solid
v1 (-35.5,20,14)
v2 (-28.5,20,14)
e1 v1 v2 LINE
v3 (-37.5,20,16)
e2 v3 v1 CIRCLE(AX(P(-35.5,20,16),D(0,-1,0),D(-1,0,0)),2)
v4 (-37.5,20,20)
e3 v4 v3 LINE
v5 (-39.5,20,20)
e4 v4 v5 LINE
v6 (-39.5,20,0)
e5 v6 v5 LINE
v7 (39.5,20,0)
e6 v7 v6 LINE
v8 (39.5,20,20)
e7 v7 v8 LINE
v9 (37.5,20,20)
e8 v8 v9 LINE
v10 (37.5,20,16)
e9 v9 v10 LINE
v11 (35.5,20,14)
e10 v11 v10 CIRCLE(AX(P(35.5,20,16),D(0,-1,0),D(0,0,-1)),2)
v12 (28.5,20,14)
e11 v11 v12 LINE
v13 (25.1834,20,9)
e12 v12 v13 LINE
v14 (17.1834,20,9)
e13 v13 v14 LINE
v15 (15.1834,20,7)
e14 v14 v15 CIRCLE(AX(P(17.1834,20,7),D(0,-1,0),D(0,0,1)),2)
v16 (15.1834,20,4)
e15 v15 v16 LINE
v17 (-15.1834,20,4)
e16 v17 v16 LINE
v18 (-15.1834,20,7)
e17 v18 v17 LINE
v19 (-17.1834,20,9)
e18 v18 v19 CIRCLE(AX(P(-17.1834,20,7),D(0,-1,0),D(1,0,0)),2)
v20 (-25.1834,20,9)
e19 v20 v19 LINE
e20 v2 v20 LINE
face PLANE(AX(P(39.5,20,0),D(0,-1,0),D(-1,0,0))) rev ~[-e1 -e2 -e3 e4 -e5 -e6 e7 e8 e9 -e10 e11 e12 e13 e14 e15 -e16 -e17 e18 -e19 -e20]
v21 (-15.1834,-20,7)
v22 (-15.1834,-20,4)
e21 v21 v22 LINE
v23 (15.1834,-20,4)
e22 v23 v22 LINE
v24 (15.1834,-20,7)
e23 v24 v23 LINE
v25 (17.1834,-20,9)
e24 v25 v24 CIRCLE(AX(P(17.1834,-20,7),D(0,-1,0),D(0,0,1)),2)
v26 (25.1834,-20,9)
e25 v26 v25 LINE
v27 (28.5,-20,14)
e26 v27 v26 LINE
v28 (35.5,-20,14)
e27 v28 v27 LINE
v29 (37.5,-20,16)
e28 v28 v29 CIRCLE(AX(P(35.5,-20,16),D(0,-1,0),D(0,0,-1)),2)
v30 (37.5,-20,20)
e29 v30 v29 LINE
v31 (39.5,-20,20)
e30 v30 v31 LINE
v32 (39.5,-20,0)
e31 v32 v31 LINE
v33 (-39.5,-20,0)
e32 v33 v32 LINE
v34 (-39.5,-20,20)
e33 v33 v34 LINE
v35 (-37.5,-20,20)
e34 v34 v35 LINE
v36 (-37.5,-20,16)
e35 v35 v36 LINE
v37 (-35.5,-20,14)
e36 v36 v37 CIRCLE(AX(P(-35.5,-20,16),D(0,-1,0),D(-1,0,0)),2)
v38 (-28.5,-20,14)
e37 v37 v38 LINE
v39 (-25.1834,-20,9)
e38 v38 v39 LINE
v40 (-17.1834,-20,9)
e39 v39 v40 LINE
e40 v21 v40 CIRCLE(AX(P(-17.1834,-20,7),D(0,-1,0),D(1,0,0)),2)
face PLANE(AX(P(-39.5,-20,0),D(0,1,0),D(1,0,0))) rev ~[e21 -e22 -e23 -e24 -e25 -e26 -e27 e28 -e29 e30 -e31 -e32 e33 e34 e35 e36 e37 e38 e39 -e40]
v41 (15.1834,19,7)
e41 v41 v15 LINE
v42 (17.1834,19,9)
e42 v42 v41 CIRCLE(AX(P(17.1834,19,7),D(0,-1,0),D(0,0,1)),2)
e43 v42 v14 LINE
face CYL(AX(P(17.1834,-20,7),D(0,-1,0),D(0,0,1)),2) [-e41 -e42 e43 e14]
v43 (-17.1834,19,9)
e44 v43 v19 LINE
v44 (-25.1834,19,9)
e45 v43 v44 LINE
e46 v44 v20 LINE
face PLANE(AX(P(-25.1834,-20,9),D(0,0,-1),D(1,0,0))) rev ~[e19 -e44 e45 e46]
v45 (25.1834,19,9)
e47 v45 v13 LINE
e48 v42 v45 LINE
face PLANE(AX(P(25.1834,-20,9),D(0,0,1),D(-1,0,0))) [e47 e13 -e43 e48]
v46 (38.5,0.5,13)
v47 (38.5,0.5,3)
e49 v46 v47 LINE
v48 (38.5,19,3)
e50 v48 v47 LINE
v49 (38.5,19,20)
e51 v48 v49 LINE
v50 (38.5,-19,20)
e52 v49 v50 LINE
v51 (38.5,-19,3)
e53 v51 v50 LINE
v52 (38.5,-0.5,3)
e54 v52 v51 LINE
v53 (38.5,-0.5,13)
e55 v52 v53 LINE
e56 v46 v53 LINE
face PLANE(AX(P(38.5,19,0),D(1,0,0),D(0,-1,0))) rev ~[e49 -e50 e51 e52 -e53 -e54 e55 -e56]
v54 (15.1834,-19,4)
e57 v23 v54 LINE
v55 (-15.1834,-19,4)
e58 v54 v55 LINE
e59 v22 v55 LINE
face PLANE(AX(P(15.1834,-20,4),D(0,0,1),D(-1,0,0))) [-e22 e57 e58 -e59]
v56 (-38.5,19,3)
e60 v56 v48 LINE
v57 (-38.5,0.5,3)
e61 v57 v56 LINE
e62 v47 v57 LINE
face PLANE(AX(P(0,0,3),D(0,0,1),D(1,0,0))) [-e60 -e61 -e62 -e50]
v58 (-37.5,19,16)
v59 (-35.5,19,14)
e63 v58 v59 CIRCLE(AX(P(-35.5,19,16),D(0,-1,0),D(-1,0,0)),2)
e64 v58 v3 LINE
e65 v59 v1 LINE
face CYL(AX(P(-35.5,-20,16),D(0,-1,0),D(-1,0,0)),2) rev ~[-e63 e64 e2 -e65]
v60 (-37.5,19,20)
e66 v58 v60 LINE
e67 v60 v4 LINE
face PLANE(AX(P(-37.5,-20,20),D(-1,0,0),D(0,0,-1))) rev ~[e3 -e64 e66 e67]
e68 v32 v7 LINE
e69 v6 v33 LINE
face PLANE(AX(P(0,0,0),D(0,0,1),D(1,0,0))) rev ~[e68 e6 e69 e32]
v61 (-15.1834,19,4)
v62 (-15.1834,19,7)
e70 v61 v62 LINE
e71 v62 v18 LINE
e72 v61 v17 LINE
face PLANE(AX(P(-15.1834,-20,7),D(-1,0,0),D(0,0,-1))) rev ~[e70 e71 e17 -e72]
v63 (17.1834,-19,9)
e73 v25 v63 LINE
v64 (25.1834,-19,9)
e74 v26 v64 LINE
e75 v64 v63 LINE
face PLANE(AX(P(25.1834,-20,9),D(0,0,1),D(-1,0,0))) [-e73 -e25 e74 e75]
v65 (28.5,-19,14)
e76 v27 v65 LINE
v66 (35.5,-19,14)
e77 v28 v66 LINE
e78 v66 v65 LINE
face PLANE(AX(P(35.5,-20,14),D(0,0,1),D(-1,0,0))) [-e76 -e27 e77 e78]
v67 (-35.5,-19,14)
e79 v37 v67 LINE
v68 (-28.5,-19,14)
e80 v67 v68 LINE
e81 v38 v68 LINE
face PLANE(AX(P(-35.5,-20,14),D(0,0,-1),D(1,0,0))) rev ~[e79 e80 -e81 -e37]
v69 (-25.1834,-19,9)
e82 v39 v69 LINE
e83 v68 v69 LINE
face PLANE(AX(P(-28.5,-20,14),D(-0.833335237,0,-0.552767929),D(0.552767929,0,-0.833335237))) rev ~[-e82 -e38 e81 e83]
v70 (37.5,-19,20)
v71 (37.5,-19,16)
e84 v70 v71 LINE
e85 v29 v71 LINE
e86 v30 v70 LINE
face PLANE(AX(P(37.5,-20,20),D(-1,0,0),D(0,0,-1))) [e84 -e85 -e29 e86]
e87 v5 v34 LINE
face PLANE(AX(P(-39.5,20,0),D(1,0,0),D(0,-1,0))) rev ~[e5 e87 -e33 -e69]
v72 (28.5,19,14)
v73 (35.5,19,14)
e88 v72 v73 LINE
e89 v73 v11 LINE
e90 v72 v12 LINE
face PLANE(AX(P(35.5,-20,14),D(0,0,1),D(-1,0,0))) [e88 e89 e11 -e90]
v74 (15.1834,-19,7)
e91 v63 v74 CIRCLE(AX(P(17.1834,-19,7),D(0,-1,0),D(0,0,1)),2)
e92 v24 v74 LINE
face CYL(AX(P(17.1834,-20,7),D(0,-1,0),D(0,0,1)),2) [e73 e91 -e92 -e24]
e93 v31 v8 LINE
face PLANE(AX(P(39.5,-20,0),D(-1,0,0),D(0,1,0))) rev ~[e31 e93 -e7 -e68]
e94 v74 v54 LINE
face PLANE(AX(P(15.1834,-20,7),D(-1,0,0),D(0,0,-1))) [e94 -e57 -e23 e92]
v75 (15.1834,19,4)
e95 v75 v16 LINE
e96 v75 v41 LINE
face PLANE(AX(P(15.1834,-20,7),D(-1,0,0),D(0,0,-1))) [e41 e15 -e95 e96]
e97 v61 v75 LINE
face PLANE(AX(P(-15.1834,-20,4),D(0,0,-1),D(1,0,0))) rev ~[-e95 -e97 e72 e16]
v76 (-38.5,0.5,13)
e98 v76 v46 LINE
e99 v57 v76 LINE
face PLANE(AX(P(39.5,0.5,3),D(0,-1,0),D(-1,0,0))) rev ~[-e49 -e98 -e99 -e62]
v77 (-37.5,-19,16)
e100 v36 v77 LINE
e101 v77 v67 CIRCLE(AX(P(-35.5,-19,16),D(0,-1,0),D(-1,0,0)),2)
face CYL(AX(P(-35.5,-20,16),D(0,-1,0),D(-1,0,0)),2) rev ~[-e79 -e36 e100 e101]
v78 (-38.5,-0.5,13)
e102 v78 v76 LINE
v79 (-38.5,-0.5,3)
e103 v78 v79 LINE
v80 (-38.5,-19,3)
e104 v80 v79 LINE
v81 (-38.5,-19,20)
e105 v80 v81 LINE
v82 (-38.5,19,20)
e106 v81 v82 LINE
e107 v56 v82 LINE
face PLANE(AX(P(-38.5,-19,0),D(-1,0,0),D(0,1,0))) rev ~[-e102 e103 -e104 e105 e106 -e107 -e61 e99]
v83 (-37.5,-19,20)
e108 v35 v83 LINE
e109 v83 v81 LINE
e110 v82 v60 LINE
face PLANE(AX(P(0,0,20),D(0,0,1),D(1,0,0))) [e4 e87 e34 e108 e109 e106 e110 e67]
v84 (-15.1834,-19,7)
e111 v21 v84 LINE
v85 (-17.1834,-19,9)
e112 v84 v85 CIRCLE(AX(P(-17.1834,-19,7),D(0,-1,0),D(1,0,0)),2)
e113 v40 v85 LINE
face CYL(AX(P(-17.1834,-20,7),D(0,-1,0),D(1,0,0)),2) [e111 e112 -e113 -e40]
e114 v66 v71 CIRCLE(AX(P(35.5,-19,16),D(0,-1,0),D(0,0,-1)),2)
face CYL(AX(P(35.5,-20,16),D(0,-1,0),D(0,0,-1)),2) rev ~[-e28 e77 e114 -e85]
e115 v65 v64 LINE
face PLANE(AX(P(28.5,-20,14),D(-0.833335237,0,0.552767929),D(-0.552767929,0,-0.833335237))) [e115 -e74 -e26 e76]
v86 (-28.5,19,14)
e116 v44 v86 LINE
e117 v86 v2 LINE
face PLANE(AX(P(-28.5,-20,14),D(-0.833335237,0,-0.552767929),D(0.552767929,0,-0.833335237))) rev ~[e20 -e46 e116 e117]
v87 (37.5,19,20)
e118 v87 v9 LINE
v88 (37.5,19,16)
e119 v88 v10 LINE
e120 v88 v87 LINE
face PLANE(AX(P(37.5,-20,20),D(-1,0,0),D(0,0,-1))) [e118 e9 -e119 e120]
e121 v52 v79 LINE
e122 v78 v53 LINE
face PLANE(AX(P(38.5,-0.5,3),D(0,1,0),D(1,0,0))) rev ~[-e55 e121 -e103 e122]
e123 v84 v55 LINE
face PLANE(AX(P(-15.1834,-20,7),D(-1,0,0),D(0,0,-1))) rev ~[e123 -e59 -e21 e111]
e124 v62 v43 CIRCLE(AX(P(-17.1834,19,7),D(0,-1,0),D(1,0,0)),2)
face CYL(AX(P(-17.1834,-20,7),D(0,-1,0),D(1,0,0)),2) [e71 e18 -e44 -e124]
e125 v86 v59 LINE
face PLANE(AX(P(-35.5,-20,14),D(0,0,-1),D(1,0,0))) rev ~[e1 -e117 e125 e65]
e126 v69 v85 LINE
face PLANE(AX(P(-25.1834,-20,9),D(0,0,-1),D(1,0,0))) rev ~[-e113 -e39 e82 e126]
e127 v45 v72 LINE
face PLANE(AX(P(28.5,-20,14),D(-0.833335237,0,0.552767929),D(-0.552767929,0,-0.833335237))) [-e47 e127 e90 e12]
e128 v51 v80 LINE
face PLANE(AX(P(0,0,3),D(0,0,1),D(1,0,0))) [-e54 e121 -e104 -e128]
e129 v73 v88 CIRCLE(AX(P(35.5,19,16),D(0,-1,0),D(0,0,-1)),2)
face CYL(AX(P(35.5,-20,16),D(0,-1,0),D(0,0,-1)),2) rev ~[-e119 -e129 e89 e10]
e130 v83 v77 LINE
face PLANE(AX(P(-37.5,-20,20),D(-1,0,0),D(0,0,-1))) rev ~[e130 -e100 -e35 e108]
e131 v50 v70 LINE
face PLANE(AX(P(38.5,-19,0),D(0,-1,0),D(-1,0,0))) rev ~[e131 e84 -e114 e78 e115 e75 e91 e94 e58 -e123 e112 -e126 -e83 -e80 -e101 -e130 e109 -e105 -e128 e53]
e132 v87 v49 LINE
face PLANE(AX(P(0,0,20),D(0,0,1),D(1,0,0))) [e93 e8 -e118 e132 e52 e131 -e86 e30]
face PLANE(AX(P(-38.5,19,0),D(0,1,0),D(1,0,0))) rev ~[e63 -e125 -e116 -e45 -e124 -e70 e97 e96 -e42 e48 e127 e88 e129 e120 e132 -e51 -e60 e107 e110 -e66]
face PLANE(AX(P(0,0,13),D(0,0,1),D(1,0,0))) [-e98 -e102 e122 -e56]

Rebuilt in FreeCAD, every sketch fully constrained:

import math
import FreeCAD as App
import Part
import Sketcher

V = App.Vector
Q = App.Units.Quantity


def add_polygon(sketch, points):
    """Adds a closed chain of lines whose ends are joined by coincident constraints."""
    first, n = sketch.GeometryCount, len(points)
    for a, b in zip(points, points[1:] + points[:1]):
        sketch.addGeometry(Part.LineSegment(App.Vector(*a, 0), App.Vector(*b, 0)), False)
    for i in range(n):
        sketch.addConstraint(Sketcher.Constraint("Coincident", first + i, 2, first + (i + 1) % n, 1))

doc = App.newDocument("Part")
body = doc.addObject("PartDesign::Body", "Body")

# Sketch on XY plane
sketch1 = body.newObject("Sketcher::SketchObject", "Sketch")
sketch1.AttachmentSupport = (doc.getObject("XY_Plane"), [""])
sketch1.MapMode = "FlatFace"
add_polygon(sketch1, [(38, 19), (-38, 19), (-38, -19), (38, -19)])  # lines 0-3
sketch1.addConstraint([
    Sketcher.Constraint("Horizontal", 0),
    Sketcher.Constraint("Vertical", 1),
    Sketcher.Constraint("Horizontal", 2),
    Sketcher.Constraint("Vertical", 3),
    Sketcher.Constraint("Symmetric", 0, 2, 2, 2, -1, 1),
    Sketcher.Constraint("DistanceX", 0, 2, 0, 1, Q("77 mm")),
    Sketcher.Constraint("DistanceY", 1, 2, 1, 1, Q("38 mm")),
])
pad1 = body.newObject("PartDesign::Pad", "Pad")
pad1.Profile = sketch1
pad1.Length = 3

# Sketch on XY plane
sketch2 = body.newObject("Sketcher::SketchObject", "Sketch001")
sketch2.AttachmentSupport = (doc.getObject("XY_Plane"), [""])
sketch2.MapMode = "FlatFace"
add_polygon(sketch2, [(-40, 20), (-40, -20), (40, -20), (40, 20)])  # lines 0-3
add_polygon(sketch2, [(-38, -19), (-38, 19), (38, 19), (38, -19)])  # lines 4-7
sketch2.addConstraint([
    Sketcher.Constraint("Vertical", 0),
    Sketcher.Constraint("Horizontal", 1),
    Sketcher.Constraint("Vertical", 2),
    Sketcher.Constraint("Horizontal", 3),
    Sketcher.Constraint("Vertical", 4),
    Sketcher.Constraint("Horizontal", 5),
    Sketcher.Constraint("Vertical", 6),
    Sketcher.Constraint("Horizontal", 7),
    Sketcher.Constraint("Symmetric", 0, 2, 2, 2, -1, 1),
    Sketcher.Constraint("Symmetric", 4, 2, 6, 2, -1, 1),
    Sketcher.Constraint("DistanceX", 1, 1, 1, 2, Q("79 mm")),
    Sketcher.Constraint("DistanceY", 0, 2, 0, 1, Q("40 mm")),
    Sketcher.Constraint("DistanceX", 3, 2, 4, 2, Q("1 mm")),
    Sketcher.Constraint("DistanceY", 4, 2, 3, 2, Q("1 mm")),
])
pad2 = body.newObject("PartDesign::Pad", "Pad001")
pad2.Profile = sketch2
pad2.Length = 20

# Sketch on XZ plane
sketch3 = body.newObject("Sketcher::SketchObject", "Sketch002")
sketch3.AttachmentSupport = (doc.getObject("XZ_Plane"), [""])
sketch3.MapMode = "FlatFace"
sketch3.AttachmentOffset = App.Placement(V(0, 0, 20), App.Rotation())
sketch3.addGeometry([
    Part.ArcOfCircle(Part.Circle(V(-35.5, 16, 0), V(0, 0, 1), 2), math.radians(180), math.radians(270)),  # 0
    Part.LineSegment(V(-35.5, 14, 0), V(-28.5, 14, 0)),  # 1
    Part.LineSegment(V(-28.5, 14, 0), V(-25.2, 9, 0)),  # 2
    Part.LineSegment(V(-25.2, 9, 0), V(-17.2, 9, 0)),  # 3
    Part.ArcOfCircle(Part.Circle(V(-17.2, 7, 0), V(0, 0, 1), 2), math.radians(0), math.radians(90)),  # 4
    Part.LineSegment(V(-15.2, 7, 0), V(-15.2, 4, 0)),  # 5
    Part.LineSegment(V(-15.2, 4, 0), V(15.2, 4, 0)),  # 6
    Part.LineSegment(V(15.2, 4, 0), V(15.2, 7, 0)),  # 7
    Part.ArcOfCircle(Part.Circle(V(17.2, 7, 0), V(0, 0, 1), 2), math.radians(90), math.radians(180)),  # 8
    Part.LineSegment(V(17.2, 9, 0), V(25.2, 9, 0)),  # 9
    Part.LineSegment(V(25.2, 9, 0), V(28.5, 14, 0)),  # 10
    Part.LineSegment(V(28.5, 14, 0), V(35.5, 14, 0)),  # 11
    Part.ArcOfCircle(Part.Circle(V(35.5, 16, 0), V(0, 0, 1), 2), math.radians(-90), math.radians(0)),  # 12
    Part.LineSegment(V(37.5, 16, 0), V(37.5, 20, 0)),  # 13
    Part.LineSegment(V(37.5, 20, 0), V(-37.5, 20, 0)),  # 14
    Part.LineSegment(V(-37.5, 20, 0), V(-37.5, 16, 0)),  # 15
], False)
sketch3.addConstraint([
    Sketcher.Constraint("Tangent", 0, 2, 1, 1),
    Sketcher.Constraint("Coincident", 1, 2, 2, 1),
    Sketcher.Constraint("Coincident", 2, 2, 3, 1),
    Sketcher.Constraint("Tangent", 3, 2, 4, 2),
    Sketcher.Constraint("Tangent", 4, 1, 5, 1),
    Sketcher.Constraint("Coincident", 5, 2, 6, 1),
    Sketcher.Constraint("Coincident", 6, 2, 7, 1),
    Sketcher.Constraint("Tangent", 7, 2, 8, 2),
    Sketcher.Constraint("Tangent", 8, 1, 9, 1),
    Sketcher.Constraint("Coincident", 9, 2, 10, 1),
    Sketcher.Constraint("Coincident", 10, 2, 11, 1),
    Sketcher.Constraint("Tangent", 11, 2, 12, 1),
    Sketcher.Constraint("Tangent", 12, 2, 13, 1),
    Sketcher.Constraint("Coincident", 13, 2, 14, 1),
    Sketcher.Constraint("Coincident", 14, 2, 15, 1),
    Sketcher.Constraint("Tangent", 15, 2, 0, 1),
    Sketcher.Constraint("Horizontal", 1),
    Sketcher.Constraint("Horizontal", 3),
    Sketcher.Constraint("Vertical", 5),
    Sketcher.Constraint("Horizontal", 6),
    Sketcher.Constraint("Vertical", 7),
    Sketcher.Constraint("Horizontal", 9),
    Sketcher.Constraint("Horizontal", 11),
    Sketcher.Constraint("Vertical", 13),
    Sketcher.Constraint("Horizontal", 14),
    Sketcher.Constraint("Vertical", 15),
    Sketcher.Constraint("Equal", 0, 4),
    Sketcher.Constraint("Equal", 4, 8),
    Sketcher.Constraint("Equal", 8, 12),
    Sketcher.Constraint("Symmetric", 4, 3, 8, 3, -2),
    Sketcher.Constraint("Symmetric", 0, 3, 12, 3, -2),
    Sketcher.Constraint("Equal", 3, 9),
    Sketcher.Constraint("Equal", 1, 11),
    Sketcher.Constraint("Radius", 0, Q("2 mm")),
    Sketcher.Constraint("Distance", 2, Q("6 mm")),
    Sketcher.Constraint("DistanceY", 2, 2, 1, 2, Q("5 mm")),
    Sketcher.Constraint("DistanceX", 2, 2, 4, 1, Q("10 mm")),
    Sketcher.Constraint("DistanceY", 5, 2, 3, 2, Q("5 mm")),
    Sketcher.Constraint("DistanceY", 11, 2, 13, 2, Q("6 mm")),
    Sketcher.Constraint("DistanceX", 1, 1, 1, 2, Q("7 mm")),
    Sketcher.Constraint("DistanceX", 14, 2, 14, 1, Q("75 mm")),
    Sketcher.Constraint("DistanceY", -1, 1, 0, 3, Q("16 mm")),
])
pocket1 = body.newObject("PartDesign::Pocket", "Pocket")
pocket1.Profile = sketch3
pocket1.Length = 40

# Sketch on XY plane
sketch4 = body.newObject("Sketcher::SketchObject", "Sketch003")
sketch4.AttachmentSupport = (doc.getObject("XY_Plane"), [""])
sketch4.MapMode = "FlatFace"
sketch4.AttachmentOffset = App.Placement(V(0, 0, 3), App.Rotation())
add_polygon(sketch4, [(39.5, 0.5), (-39.5, 0.5), (-39.5, -0.5), (39.5, -0.5)])  # lines 0-3
sketch4.addConstraint([
    Sketcher.Constraint("Horizontal", 0),
    Sketcher.Constraint("Vertical", 1),
    Sketcher.Constraint("Horizontal", 2),
    Sketcher.Constraint("Vertical", 3),
    Sketcher.Constraint("Symmetric", 0, 2, 2, 2, -1, 1),
    Sketcher.Constraint("DistanceY", 1, 2, 1, 1, Q("1 mm")),
    Sketcher.Constraint("DistanceX", 0, 2, 0, 1, Q("79 mm")),
])
pad3 = body.newObject("PartDesign::Pad", "Pad002")
pad3.Profile = sketch4
pad3.Length = 10

doc.recompute()
